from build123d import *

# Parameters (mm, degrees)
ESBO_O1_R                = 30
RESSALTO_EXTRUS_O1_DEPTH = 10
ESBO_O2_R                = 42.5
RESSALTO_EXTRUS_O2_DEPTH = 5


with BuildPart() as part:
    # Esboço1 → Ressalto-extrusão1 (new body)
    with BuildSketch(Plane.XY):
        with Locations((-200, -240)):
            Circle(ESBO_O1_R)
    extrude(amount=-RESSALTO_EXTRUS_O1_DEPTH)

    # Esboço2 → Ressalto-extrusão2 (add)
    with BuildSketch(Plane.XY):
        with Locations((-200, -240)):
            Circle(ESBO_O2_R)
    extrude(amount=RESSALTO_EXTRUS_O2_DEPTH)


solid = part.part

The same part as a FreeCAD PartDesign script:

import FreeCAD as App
import Part
import Sketcher
Q = App.Units.Quantity

doc = App.newDocument("Part")
params = doc.addObject("Spreadsheet::Sheet", "Params")
for row, (alias, value) in enumerate([
    ("sketch1_diameter", "60 mm"),
    ("pad1_length", "10 mm"),
    ("sketch2_diameter", "85 mm"),
    ("pad2_length", "5 mm"),
], start=1):
    params.set(f"A{row}", alias)
    params.set(f"B{row}", "=" + value)
    params.setAlias(f"B{row}", alias)

body = doc.addObject("PartDesign::Body", "Body")

# Sketch on XY plane
sketch1 = doc.addObject("Sketcher::SketchObject", "Sketch")
body.addObject(sketch1)
sketch1.AttachmentSupport = (doc.XY_Plane, [""])
sketch1.MapMode = "FlatFace"
sketch1.addGeometry(Part.Circle(App.Vector(-200, -240, 0), App.Vector(0, 0, 1), 30), False)
sketch1.addConstraint([
    Sketcher.Constraint("Diameter", 0, Q("60 mm")),
    Sketcher.Constraint("DistanceX", 0, 3, -1, 1, Q("200 mm")),
    Sketcher.Constraint("DistanceY", 0, 3, -1, 1, Q("240 mm")),
])
sketch1.setExpression("Constraints[0]", "Params.sketch1_diameter")
pad1 = doc.addObject("PartDesign::Pad", "Pad")
body.addObject(pad1)
pad1.Profile = sketch1
pad1.setExpression("Length", "Params.pad1_length")
pad1.Reversed = True

# Sketch on XY plane
sketch2 = doc.addObject("Sketcher::SketchObject", "Sketch001")
body.addObject(sketch2)
sketch2.AttachmentSupport = (doc.XY_Plane, [""])
sketch2.MapMode = "FlatFace"
sketch2.addGeometry(Part.Circle(App.Vector(-200, -240, 0), App.Vector(0, 0, 1), 42), False)
sketch2.addConstraint([
    Sketcher.Constraint("Diameter", 0, Q("85 mm")),
    Sketcher.Constraint("DistanceX", 0, 3, -1, 1, Q("200 mm")),
    Sketcher.Constraint("DistanceY", 0, 3, -1, 1, Q("240 mm")),
])
sketch2.setExpression("Constraints[0]", "Params.sketch2_diameter")
pad2 = doc.addObject("PartDesign::Pad", "Pad001")
body.addObject(pad2)
pad2.Profile = sketch2
pad2.setExpression("Length", "Params.pad2_length")

doc.recompute()
